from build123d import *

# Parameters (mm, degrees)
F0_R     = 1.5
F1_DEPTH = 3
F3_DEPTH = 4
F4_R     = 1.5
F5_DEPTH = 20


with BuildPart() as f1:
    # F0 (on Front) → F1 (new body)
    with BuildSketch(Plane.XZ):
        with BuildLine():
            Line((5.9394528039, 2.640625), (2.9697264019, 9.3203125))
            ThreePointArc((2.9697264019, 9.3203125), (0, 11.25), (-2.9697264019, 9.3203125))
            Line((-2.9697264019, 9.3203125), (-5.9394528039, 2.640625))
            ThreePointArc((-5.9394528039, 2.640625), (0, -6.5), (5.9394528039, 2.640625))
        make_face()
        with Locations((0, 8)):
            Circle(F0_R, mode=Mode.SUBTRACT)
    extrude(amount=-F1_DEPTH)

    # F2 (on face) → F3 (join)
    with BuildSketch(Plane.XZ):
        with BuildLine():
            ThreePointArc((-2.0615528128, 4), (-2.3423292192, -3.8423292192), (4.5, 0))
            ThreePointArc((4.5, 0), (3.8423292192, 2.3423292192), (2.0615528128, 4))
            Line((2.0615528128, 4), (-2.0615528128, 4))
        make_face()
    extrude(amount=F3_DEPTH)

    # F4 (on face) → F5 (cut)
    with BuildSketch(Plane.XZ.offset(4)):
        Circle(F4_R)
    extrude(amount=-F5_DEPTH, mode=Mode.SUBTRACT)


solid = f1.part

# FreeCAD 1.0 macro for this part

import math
import FreeCAD as App
import Part
import Sketcher
from FreeCAD import Vector

doc = App.newDocument("Part")
body = doc.addObject("PartDesign::Body", "Body")

# Sketch on XZ plane
sketch1 = body.newObject("Sketcher::SketchObject", "Sketch")
sketch1.AttachmentSupport = (doc.getObject("XZ_Plane"), [""])
sketch1.MapMode = "FlatFace"
sketch1.addGeometry([
    Part.LineSegment(Vector(5.9, 2.6, 0), Vector(3, 9.3, 0)),  # 0
    Part.ArcOfCircle(Part.Circle(Vector(0, 8, 0), Vector(0, 0, 1), 3.2), math.radians(24), math.radians(156)),  # 1
    Part.LineSegment(Vector(-3, 9.3, 0), Vector(-5.9, 2.6, 0)),  # 2
    Part.ArcOfCircle(Part.Circle(Vector(0, 0, 0), Vector(0, 0, 1), 6.5), math.radians(156), math.radians(384)),  # 3
    Part.Circle(Vector(0, 8, 0), Vector(0, 0, 1), 1.5),  # 4
], False)
sketch1.addConstraint([
    Sketcher.Constraint("Tangent", 0, 2, 1, 1),
    Sketcher.Constraint("Tangent", 1, 2, 2, 1),
    Sketcher.Constraint("Tangent", 2, 2, 3, 1),
    Sketcher.Constraint("Tangent", 3, 2, 0, 1),
    Sketcher.Constraint("Coincident", 3, 3, -1, 1),
    Sketcher.Constraint("Coincident", 4, 3, 1, 3),
    Sketcher.Constraint("PointOnObject", 1, 3, -2),
    Sketcher.Constraint("Diameter", 4, 3.0),
    Sketcher.Constraint("Radius", 3, 6.5),
    Sketcher.Constraint("Radius", 1, 3.25),
    Sketcher.Constraint("DistanceY", -1, 1, 1, 3, 8.0),
])
pad1 = body.newObject("PartDesign::Pad", "Pad")
pad1.Profile = sketch1
pad1.Length = 3
pad1.Reversed = True

# Sketch on XZ plane
sketch2 = body.newObject("Sketcher::SketchObject", "Sketch001")
sketch2.AttachmentSupport = (doc.getObject("XZ_Plane"), [""])
sketch2.MapMode = "FlatFace"
sketch2.addGeometry([
    Part.ArcOfCircle(Part.Circle(Vector(0, 0, 0), Vector(0, 0, 1), 4.5), math.radians(117), math.radians(360)),
    Part.ArcOfCircle(Part.Circle(Vector(0, 0, 0), Vector(0, 0, 1), 4.5), math.radians(0), math.radians(63)),
    Part.LineSegment(Vector(2.1, 4, 0), Vector(-2.1, 4, 0)),
], False)
sketch2.addConstraint([
    Sketcher.Constraint("Tangent", 0, 2, 1, 1),
    Sketcher.Constraint("Coincident", 1, 2, 2, 1),
    Sketcher.Constraint("Coincident", 2, 2, 0, 1),
    Sketcher.Constraint("Horizontal", 2),
    Sketcher.Constraint("Coincident", 0, 3, -1, 1),
    Sketcher.Constraint("Equal", 0, 1),
    Sketcher.Constraint("PointOnObject", 0, 2, -1),
    Sketcher.Constraint("Radius", 0, 4.5),
    Sketcher.Constraint("DistanceY", -1, 1, 1, 2, 4.0),
])
pad2 = body.newObject("PartDesign::Pad", "Pad001")
pad2.Profile = sketch2
pad2.Length = 4

# Sketch on XZ plane
sketch3 = body.newObject("Sketcher::SketchObject", "Sketch002")
sketch3.AttachmentSupport = (doc.getObject("XZ_Plane"), [""])
sketch3.MapMode = "FlatFace"
sketch3.AttachmentOffset = App.Placement(Vector(0, 0, 4), App.Rotation())
sketch3.addGeometry(Part.Circle(Vector(0, 0, 0), Vector(0, 0, 1), 1.5), False)
sketch3.addConstraint([
    Sketcher.Constraint("Coincident", 0, 3, -1, 1),
    Sketcher.Constraint("Diameter", 0, 3.0),
])
pocket1 = body.newObject("PartDesign::Pocket", "Pocket")
pocket1.Profile = sketch3
pocket1.Length = 20

doc.recompute()
